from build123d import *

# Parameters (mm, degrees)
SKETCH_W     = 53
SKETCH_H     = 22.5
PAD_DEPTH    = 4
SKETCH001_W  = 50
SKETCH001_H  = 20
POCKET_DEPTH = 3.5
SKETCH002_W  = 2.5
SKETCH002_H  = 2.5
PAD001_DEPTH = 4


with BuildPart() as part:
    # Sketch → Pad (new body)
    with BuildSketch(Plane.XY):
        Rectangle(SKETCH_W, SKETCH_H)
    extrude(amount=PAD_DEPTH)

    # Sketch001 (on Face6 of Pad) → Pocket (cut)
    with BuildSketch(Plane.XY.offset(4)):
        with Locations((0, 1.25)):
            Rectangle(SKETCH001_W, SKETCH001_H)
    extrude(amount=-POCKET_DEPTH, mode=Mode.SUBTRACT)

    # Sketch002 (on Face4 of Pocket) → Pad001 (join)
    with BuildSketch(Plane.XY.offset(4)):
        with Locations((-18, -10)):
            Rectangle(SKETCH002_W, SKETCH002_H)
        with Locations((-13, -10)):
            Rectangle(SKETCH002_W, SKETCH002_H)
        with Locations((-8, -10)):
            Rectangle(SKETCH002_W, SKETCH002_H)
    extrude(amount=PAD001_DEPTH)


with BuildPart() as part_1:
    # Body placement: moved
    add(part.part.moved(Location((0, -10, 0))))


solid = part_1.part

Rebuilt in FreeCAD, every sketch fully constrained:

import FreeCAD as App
import Part
import Sketcher
from FreeCAD import Vector


def add_polygon(sketch, points):
    """Adds a closed chain of lines whose ends are joined by coincident constraints."""
    first, n = sketch.GeometryCount, len(points)
    for a, b in zip(points, points[1:] + points[:1]):
        sketch.addGeometry(Part.LineSegment(App.Vector(*a, 0), App.Vector(*b, 0)), False)
    for i in range(n):
        sketch.addConstraint(Sketcher.Constraint("Coincident", first + i, 2, first + (i + 1) % n, 1))

doc = App.newDocument("Part")
body = doc.addObject("PartDesign::Body", "Body")

sketch1 = body.newObject("Sketcher::SketchObject", "Sketch")
sketch1.AttachmentSupport = (doc.getObject("XY_Plane"), [""])
sketch1.MapMode = "FlatFace"
add_polygon(sketch1, [(-26, 11), (-26, -11), (26, -11), (26, 11)])
sketch1.addConstraint([
    Sketcher.Constraint("Vertical", 0),
    Sketcher.Constraint("Horizontal", 1),
    Sketcher.Constraint("Vertical", 2),
    Sketcher.Constraint("Horizontal", 3),
    Sketcher.Constraint("Symmetric", 0, 2, 2, 2, -1, 1),
    Sketcher.Constraint("DistanceX", 1, 1, 1, 2, 53.0),
    Sketcher.Constraint("DistanceY", 0, 2, 0, 1, 22.5),
])
pad1 = body.newObject("PartDesign::Pad", "Pad")
pad1.Profile = sketch1
pad1.Length = 4

sketch2 = body.newObject("Sketcher::SketchObject", "Sketch001")
sketch2.AttachmentSupport = (doc.getObject("XY_Plane"), [""])
sketch2.MapMode = "FlatFace"
sketch2.AttachmentOffset = App.Placement(Vector(0, 0, 4), App.Rotation())
add_polygon(sketch2, [(-25, 11), (-25, -9), (25, -9), (25, 11)])
sketch2.addConstraint([
    Sketcher.Constraint("Vertical", 0),
    Sketcher.Constraint("Horizontal", 1),
    Sketcher.Constraint("Vertical", 2),
    Sketcher.Constraint("Horizontal", 3),
    Sketcher.Constraint("DistanceX", 1, 1, 1, 2, 50.0),
    Sketcher.Constraint("DistanceY", 0, 2, 0, 1, 20.0),
    Sketcher.Constraint("DistanceX", 0, 2, -1, 1, 25.0),
    Sketcher.Constraint("DistanceY", 0, 2, -1, 1, 8.75),
])
pocket1 = body.newObject("PartDesign::Pocket", "Pocket")
pocket1.Profile = sketch2
pocket1.Length = 3.5

sketch3 = body.newObject("Sketcher::SketchObject", "Sketch002")
sketch3.AttachmentSupport = (doc.getObject("XY_Plane"), [""])
sketch3.MapMode = "FlatFace"
sketch3.AttachmentOffset = App.Placement(Vector(0, 0, 4), App.Rotation())
add_polygon(sketch3, [(-19.2, -8.8), (-19.2, -11.2), (-16.8, -11.2), (-16.8, -8.8)])
add_polygon(sketch3, [(-14.2, -8.8), (-14.2, -11.2), (-11.8, -11.2), (-11.8, -8.8)])
add_polygon(sketch3, [(-9.2, -8.8), (-9.2, -11.2), (-6.8, -11.2), (-6.8, -8.8)])
sketch3.addConstraint([
    Sketcher.Constraint("Vertical", 0),
    Sketcher.Constraint("Horizontal", 1),
    Sketcher.Constraint("Vertical", 2),
    Sketcher.Constraint("Horizontal", 3),
    Sketcher.Constraint("Vertical", 4),
    Sketcher.Constraint("Horizontal", 5),
    Sketcher.Constraint("Vertical", 6),
    Sketcher.Constraint("Horizontal", 7),
    Sketcher.Constraint("Vertical", 8),
    Sketcher.Constraint("Horizontal", 9),
    Sketcher.Constraint("Vertical", 10),
    Sketcher.Constraint("Horizontal", 11),
    Sketcher.Constraint("Horizontal", 1, 2, 4, 2),
    Sketcher.Constraint("Horizontal", 3, 2, 6, 2),
    Sketcher.Constraint("Horizontal", 5, 2, 8, 2),
    Sketcher.Constraint("Horizontal", 7, 2, 10, 2),
    Sketcher.Constraint("Equal", 3, 5),
    Sketcher.Constraint("Equal", 7, 9),
    Sketcher.Constraint("Equal", 11, 0),
    Sketcher.Constraint("DistanceX", 1, 1, 1, 2, 2.5),
    Sketcher.Constraint("DistanceX", 0, 2, 4, 2, 5.0),
    Sketcher.Constraint("DistanceX", 4, 2, 8, 2, 5.0),
    Sketcher.Constraint("DistanceX", 0, 2, -1, 1, 19.25),
    Sketcher.Constraint("DistanceY", 0, 2, -1, 1, 11.25),
])
pad2 = body.newObject("PartDesign::Pad", "Pad001")
pad2.Profile = sketch3
pad2.Length = 4
body2 = doc.addObject("PartDesign::Body", "Body001")
doc.recompute()

body.Placement = App.Placement(Vector(0, -10, 0), App.Rotation(Vector(0, 0, 1), 0))
boolean = body2.newObject("PartDesign::Boolean", "Boolean")
boolean.Type = "Fuse"
boolean.addObjects([body])

doc.recompute()
